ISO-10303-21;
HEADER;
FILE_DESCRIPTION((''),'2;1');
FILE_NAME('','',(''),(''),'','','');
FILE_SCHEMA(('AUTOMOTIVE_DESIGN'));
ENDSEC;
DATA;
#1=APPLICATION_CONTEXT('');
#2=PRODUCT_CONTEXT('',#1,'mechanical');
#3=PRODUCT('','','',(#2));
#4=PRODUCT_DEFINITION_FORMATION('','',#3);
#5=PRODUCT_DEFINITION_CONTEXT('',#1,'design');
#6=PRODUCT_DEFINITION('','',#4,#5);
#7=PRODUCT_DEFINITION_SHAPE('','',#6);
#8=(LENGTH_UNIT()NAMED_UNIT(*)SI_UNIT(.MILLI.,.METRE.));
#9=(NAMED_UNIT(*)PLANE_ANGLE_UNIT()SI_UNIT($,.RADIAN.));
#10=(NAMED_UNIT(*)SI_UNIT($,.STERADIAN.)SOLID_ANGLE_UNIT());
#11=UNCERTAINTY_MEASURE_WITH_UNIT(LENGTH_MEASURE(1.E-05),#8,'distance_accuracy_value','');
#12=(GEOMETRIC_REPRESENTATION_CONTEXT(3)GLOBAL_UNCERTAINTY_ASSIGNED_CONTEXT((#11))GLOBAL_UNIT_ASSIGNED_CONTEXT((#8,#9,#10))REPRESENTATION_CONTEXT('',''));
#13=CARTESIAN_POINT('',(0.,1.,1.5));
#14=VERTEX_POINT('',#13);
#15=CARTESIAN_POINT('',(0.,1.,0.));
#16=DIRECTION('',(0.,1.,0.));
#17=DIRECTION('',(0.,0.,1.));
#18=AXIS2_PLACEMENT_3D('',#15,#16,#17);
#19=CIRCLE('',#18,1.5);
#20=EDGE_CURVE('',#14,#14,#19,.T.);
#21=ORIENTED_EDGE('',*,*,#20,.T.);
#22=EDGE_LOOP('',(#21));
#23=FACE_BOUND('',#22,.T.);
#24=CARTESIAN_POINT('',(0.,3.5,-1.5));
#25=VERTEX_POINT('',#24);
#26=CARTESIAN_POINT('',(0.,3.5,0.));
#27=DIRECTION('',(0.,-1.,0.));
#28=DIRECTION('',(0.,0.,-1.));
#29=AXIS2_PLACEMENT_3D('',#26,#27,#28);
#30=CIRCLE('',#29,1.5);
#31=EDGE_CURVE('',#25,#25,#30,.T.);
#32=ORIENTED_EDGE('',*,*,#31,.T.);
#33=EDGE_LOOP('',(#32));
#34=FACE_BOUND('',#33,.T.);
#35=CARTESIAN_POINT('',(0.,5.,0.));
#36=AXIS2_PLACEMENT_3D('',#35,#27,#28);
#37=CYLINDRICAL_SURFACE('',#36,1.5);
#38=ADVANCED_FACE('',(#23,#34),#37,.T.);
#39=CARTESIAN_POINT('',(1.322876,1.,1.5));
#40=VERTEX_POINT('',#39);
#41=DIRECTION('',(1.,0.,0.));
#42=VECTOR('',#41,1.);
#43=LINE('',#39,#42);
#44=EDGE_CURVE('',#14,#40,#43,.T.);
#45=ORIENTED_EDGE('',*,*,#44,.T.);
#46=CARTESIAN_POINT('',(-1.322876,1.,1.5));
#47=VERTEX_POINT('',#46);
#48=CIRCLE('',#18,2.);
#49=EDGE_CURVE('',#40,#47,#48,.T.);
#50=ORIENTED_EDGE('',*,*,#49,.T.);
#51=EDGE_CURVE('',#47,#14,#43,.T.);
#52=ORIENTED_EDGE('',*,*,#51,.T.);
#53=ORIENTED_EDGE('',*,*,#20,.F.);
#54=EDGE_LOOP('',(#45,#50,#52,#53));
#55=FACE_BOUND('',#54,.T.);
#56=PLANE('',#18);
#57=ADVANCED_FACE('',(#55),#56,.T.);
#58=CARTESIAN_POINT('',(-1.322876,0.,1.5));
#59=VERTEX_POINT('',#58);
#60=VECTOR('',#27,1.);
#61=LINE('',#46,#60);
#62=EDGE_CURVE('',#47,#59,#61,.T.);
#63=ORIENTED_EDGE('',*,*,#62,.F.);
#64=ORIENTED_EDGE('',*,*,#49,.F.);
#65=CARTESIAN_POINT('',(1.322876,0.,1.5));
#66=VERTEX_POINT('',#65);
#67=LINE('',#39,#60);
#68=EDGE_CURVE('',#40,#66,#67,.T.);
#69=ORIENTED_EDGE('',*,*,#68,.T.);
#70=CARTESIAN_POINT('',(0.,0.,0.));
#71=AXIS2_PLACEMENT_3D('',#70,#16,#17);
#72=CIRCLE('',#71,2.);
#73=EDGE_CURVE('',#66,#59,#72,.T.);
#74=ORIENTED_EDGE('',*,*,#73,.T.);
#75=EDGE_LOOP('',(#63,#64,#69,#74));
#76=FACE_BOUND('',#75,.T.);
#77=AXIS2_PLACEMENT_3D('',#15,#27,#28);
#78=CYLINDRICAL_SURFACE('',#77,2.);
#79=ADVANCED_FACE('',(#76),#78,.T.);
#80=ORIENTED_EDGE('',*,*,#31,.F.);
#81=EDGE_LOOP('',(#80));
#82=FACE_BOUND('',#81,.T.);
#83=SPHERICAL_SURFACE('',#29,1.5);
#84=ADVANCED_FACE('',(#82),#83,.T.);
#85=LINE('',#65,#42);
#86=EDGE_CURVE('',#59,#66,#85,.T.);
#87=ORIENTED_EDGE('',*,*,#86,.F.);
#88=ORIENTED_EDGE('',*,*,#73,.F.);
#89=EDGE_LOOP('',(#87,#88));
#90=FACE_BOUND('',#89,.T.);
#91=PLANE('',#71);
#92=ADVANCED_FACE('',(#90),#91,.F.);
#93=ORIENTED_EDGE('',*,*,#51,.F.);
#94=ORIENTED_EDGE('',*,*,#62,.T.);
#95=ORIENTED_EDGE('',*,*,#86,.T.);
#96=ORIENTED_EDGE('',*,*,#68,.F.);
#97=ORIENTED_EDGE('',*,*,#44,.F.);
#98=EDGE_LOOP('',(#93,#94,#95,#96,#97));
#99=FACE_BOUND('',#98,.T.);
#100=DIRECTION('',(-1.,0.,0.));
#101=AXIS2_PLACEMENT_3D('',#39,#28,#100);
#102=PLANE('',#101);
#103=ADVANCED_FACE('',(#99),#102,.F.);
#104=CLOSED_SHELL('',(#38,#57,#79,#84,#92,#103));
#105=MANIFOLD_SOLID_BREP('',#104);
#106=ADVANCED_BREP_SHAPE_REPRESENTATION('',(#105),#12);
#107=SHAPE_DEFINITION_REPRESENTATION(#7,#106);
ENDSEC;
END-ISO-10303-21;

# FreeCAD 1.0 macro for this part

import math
import FreeCAD as App
import Part
import Sketcher
from FreeCAD import Vector
Q = App.Units.Quantity


def edges_at(feature, points):
    """Names of the edges that pass closest to the given points."""
    edges = feature.Shape.Edges
    near = lambda p: min(range(len(edges)), key=lambda i: edges[i].distToShape(Part.Vertex(*p))[0])
    return sorted({f"Edge{near(p) + 1}" for p in points})

doc = App.newDocument("Part")
body = doc.addObject("PartDesign::Body", "Body")

sketch1 = body.newObject("Sketcher::SketchObject", "Sketch")
sketch1.AttachmentSupport = (doc.getObject("XZ_Plane"), [""])
sketch1.MapMode = "FlatFace"
sketch1.addGeometry(Part.Circle(Vector(0, 0, 0), Vector(0, 0, 1), 1.5), False)
sketch1.addConstraint([
    Sketcher.Constraint("Coincident", 0, 3, -1, 1),
    Sketcher.Constraint("Diameter", 0, Q("3 mm")),
])
pad1 = body.newObject("PartDesign::Pad", "Pad")
pad1.Profile = sketch1
pad1.Length = 5
pad1.Reversed = True
doc.recompute()

fillet = body.newObject("PartDesign::Fillet", "Fillet")
fillet.Base = (pad1, edges_at(pad1, [(0, 5, -1.5)]))
fillet.Radius = 1.5

sketch2 = body.newObject("Sketcher::SketchObject", "Sketch001")
sketch2.AttachmentSupport = (doc.getObject("XZ_Plane"), [""])
sketch2.MapMode = "FlatFace"
sketch2.addGeometry([
    Part.LineSegment(Vector(-1.3, 1.5, 0), Vector(1.3, 1.5, 0)),
    Part.ArcOfCircle(Part.Circle(Vector(0, 0, 0), Vector(0, 0, 1), 2), math.radians(131), math.radians(409)),
], False)
sketch2.addConstraint([
    Sketcher.Constraint("Coincident", 0, 1, 1, 1),
    Sketcher.Constraint("Coincident", 1, 2, 0, 2),
    Sketcher.Constraint("Horizontal", 0),
    Sketcher.Constraint("Coincident", 1, 3, -1, 1),
    Sketcher.Constraint("Radius", 1, Q("2 mm")),
    Sketcher.Constraint("DistanceY", -1, 1, 0, 1, Q("1.5 mm")),
])
pad2 = body.newObject("PartDesign::Pad", "Pad001")
pad2.Profile = sketch2
pad2.Length = 1
pad2.Reversed = True

doc.recompute()
